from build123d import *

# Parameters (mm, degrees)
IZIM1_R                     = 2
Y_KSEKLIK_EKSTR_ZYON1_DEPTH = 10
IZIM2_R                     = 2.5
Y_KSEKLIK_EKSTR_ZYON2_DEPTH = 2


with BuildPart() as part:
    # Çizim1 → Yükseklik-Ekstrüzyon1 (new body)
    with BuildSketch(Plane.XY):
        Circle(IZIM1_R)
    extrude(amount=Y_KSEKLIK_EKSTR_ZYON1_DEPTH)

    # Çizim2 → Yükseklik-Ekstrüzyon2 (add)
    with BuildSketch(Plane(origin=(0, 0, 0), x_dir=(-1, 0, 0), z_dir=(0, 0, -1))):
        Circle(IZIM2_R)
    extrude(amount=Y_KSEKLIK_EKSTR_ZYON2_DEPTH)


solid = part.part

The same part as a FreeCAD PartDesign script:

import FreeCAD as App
import Part
import Sketcher
from FreeCAD import Vector

doc = App.newDocument("Part")
body = doc.addObject("PartDesign::Body", "Body")

# Sketch on XY plane
sketch1 = doc.addObject("Sketcher::SketchObject", "Sketch")
body.addObject(sketch1)
sketch1.AttachmentSupport = (doc.XY_Plane, [""])
sketch1.MapMode = "FlatFace"
sketch1.addGeometry(Part.Circle(Vector(0, 0, 0), Vector(0, 0, 1), 2), False)
sketch1.addConstraint(Sketcher.Constraint("Coincident", 0, 3, -1, 1))
sketch1.addConstraint(Sketcher.Constraint("Diameter", 0, 4.0))
pad1 = doc.addObject("PartDesign::Pad", "Pad")
body.addObject(pad1)
pad1.Profile = sketch1
pad1.Length = 10

# Sketch on XY plane
sketch2 = doc.addObject("Sketcher::SketchObject", "Sketch001")
body.addObject(sketch2)
sketch2.AttachmentSupport = (doc.XY_Plane, [""])
sketch2.MapMode = "FlatFace"
sketch2.addGeometry(Part.Circle(Vector(0, 0, 0), Vector(0, 0, 1), 2.5), False)
sketch2.addConstraint(Sketcher.Constraint("Coincident", 0, 3, -1, 1))
sketch2.addConstraint(Sketcher.Constraint("Diameter", 0, 5.0))
pad2 = doc.addObject("PartDesign::Pad", "Pad001")
body.addObject(pad2)
pad2.Profile = sketch2
pad2.Length = 2
pad2.Reversed = True

doc.recompute()
